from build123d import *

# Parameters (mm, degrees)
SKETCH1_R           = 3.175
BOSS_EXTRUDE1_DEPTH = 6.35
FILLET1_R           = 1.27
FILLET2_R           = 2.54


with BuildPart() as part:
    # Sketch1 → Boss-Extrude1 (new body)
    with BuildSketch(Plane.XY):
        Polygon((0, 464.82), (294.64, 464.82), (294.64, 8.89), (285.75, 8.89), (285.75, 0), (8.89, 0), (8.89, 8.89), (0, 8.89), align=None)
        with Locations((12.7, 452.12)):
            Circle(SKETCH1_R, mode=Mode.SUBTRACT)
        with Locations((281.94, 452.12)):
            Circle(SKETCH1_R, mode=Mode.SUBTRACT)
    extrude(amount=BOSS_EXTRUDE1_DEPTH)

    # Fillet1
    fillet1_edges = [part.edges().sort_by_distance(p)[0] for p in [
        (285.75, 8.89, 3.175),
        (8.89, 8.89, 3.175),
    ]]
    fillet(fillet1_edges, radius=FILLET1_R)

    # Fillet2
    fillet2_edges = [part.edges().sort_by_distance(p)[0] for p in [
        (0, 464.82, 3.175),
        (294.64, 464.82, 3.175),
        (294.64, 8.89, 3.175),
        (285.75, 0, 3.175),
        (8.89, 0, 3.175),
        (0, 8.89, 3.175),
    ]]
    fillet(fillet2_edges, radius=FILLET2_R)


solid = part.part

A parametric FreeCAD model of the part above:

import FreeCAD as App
import Part
import Sketcher
from FreeCAD import Vector
Q = App.Units.Quantity


def edges_at(feature, points):
    """Names of the edges that pass closest to the given points."""
    edges = feature.Shape.Edges
    near = lambda p: min(range(len(edges)), key=lambda i: edges[i].distToShape(Part.Vertex(*p))[0])
    return sorted({f"Edge{near(p) + 1}" for p in points})


def add_polygon(sketch, points):
    """Adds a closed chain of lines whose ends are joined by coincident constraints."""
    first, n = sketch.GeometryCount, len(points)
    for a, b in zip(points, points[1:] + points[:1]):
        sketch.addGeometry(Part.LineSegment(App.Vector(*a, 0), App.Vector(*b, 0)), False)
    for i in range(n):
        sketch.addConstraint(Sketcher.Constraint("Coincident", first + i, 2, first + (i + 1) % n, 1))

doc = App.newDocument("Part")
params = doc.addObject("Spreadsheet::Sheet", "Params")
for row, (alias, value) in enumerate([
    ("sketch1_diameter", "0.25 in"),
    ("sketch1_width", "11.6 in"),
    ("sketch1_width2", "10.9 in"),
    ("sketch1_height", "17.95 in"),
    ("pad1_length", "0.25 in"),
    ("fillet_radius", "0.05 in"),
    ("fillet2_radius", "0.1 in"),
], start=1):
    params.set(f"A{row}", alias)
    params.set(f"B{row}", "=" + value)
    params.setAlias(f"B{row}", alias)

body = doc.addObject("PartDesign::Body", "Body")

sketch1 = body.newObject("Sketcher::SketchObject", "Sketch")
sketch1.AttachmentSupport = (doc.getObject("XY_Plane"), [""])
sketch1.MapMode = "FlatFace"
add_polygon(sketch1, [(294.64, 464.82), (0, 464.82), (0, 8.89), (8.89, 8.89), (8.89, 0), (285.75, 0), (285.75, 8.89), (294.64, 8.89)])
sketch1.addGeometry(Part.Circle(Vector(281.94, 452.12, 0), Vector(0, 0, 1), 3.175), False)
sketch1.addGeometry(Part.Circle(Vector(12.7, 452.12, 0), Vector(0, 0, 1), 3.175), False)
sketch1.addConstraint([
    Sketcher.Constraint("Horizontal", 0),
    Sketcher.Constraint("Vertical", 1),
    Sketcher.Constraint("Horizontal", 2),
    Sketcher.Constraint("Vertical", 3),
    Sketcher.Constraint("Horizontal", 4),
    Sketcher.Constraint("Vertical", 5),
    Sketcher.Constraint("Horizontal", 6),
    Sketcher.Constraint("Vertical", 7),
    Sketcher.Constraint("Equal", 8, 9),
    Sketcher.Constraint("PointOnObject", 0, 2, -2),
    Sketcher.Constraint("PointOnObject", 3, 2, -1),
    Sketcher.Constraint("Horizontal", 8, 3, 9, 3),
    Sketcher.Constraint("Horizontal", 2, 2, 5, 2),
    Sketcher.Constraint("Equal", 2, 6),
    Sketcher.Constraint("Equal", 6, 3),
    Sketcher.Constraint("Diameter", 8, Q("0.25 in")),
    Sketcher.Constraint("DistanceX", 0, 2, 0, 1, Q("11.6 in")),
    Sketcher.Constraint("DistanceX", 4, 1, 4, 2, Q("10.9 in")),
    Sketcher.Constraint("DistanceY", 1, 2, 1, 1, Q("17.95 in")),
    Sketcher.Constraint("DistanceX", -1, 1, 8, 3, Q("11.1 in")),
    Sketcher.Constraint("DistanceY", -1, 1, 8, 3, Q("17.8 in")),
    Sketcher.Constraint("DistanceX", -1, 1, 9, 3, Q("0.5 in")),
])
sketch1.setExpression("Constraints[23]", "Params.sketch1_diameter")
sketch1.setExpression("Constraints[24]", "Params.sketch1_width")
sketch1.setExpression("Constraints[25]", "Params.sketch1_width2")
sketch1.setExpression("Constraints[26]", "Params.sketch1_height")
pad1 = body.newObject("PartDesign::Pad", "Pad")
pad1.Profile = sketch1
pad1.setExpression("Length", "Params.pad1_length")
doc.recompute()

fillet = body.newObject("PartDesign::Fillet", "Fillet")
fillet.Base = (pad1, edges_at(pad1, [(285.75, 8.89, 3.175), (8.89, 8.89, 3.175)]))
fillet.setExpression("Radius", "Params.fillet_radius")
doc.recompute()

fillet2 = body.newObject("PartDesign::Fillet", "Fillet001")
fillet2.Base = (fillet, edges_at(fillet, [
    (0, 464.82, 3.175),
    (294.64, 464.82, 3.175),
    (294.64, 8.89, 3.175),
    (285.75, 0, 3.175),
    (8.89, 0, 3.175),
    (0, 8.89, 3.175),
]))
fillet2.setExpression("Radius", "Params.fillet2_radius")

doc.recompute()
